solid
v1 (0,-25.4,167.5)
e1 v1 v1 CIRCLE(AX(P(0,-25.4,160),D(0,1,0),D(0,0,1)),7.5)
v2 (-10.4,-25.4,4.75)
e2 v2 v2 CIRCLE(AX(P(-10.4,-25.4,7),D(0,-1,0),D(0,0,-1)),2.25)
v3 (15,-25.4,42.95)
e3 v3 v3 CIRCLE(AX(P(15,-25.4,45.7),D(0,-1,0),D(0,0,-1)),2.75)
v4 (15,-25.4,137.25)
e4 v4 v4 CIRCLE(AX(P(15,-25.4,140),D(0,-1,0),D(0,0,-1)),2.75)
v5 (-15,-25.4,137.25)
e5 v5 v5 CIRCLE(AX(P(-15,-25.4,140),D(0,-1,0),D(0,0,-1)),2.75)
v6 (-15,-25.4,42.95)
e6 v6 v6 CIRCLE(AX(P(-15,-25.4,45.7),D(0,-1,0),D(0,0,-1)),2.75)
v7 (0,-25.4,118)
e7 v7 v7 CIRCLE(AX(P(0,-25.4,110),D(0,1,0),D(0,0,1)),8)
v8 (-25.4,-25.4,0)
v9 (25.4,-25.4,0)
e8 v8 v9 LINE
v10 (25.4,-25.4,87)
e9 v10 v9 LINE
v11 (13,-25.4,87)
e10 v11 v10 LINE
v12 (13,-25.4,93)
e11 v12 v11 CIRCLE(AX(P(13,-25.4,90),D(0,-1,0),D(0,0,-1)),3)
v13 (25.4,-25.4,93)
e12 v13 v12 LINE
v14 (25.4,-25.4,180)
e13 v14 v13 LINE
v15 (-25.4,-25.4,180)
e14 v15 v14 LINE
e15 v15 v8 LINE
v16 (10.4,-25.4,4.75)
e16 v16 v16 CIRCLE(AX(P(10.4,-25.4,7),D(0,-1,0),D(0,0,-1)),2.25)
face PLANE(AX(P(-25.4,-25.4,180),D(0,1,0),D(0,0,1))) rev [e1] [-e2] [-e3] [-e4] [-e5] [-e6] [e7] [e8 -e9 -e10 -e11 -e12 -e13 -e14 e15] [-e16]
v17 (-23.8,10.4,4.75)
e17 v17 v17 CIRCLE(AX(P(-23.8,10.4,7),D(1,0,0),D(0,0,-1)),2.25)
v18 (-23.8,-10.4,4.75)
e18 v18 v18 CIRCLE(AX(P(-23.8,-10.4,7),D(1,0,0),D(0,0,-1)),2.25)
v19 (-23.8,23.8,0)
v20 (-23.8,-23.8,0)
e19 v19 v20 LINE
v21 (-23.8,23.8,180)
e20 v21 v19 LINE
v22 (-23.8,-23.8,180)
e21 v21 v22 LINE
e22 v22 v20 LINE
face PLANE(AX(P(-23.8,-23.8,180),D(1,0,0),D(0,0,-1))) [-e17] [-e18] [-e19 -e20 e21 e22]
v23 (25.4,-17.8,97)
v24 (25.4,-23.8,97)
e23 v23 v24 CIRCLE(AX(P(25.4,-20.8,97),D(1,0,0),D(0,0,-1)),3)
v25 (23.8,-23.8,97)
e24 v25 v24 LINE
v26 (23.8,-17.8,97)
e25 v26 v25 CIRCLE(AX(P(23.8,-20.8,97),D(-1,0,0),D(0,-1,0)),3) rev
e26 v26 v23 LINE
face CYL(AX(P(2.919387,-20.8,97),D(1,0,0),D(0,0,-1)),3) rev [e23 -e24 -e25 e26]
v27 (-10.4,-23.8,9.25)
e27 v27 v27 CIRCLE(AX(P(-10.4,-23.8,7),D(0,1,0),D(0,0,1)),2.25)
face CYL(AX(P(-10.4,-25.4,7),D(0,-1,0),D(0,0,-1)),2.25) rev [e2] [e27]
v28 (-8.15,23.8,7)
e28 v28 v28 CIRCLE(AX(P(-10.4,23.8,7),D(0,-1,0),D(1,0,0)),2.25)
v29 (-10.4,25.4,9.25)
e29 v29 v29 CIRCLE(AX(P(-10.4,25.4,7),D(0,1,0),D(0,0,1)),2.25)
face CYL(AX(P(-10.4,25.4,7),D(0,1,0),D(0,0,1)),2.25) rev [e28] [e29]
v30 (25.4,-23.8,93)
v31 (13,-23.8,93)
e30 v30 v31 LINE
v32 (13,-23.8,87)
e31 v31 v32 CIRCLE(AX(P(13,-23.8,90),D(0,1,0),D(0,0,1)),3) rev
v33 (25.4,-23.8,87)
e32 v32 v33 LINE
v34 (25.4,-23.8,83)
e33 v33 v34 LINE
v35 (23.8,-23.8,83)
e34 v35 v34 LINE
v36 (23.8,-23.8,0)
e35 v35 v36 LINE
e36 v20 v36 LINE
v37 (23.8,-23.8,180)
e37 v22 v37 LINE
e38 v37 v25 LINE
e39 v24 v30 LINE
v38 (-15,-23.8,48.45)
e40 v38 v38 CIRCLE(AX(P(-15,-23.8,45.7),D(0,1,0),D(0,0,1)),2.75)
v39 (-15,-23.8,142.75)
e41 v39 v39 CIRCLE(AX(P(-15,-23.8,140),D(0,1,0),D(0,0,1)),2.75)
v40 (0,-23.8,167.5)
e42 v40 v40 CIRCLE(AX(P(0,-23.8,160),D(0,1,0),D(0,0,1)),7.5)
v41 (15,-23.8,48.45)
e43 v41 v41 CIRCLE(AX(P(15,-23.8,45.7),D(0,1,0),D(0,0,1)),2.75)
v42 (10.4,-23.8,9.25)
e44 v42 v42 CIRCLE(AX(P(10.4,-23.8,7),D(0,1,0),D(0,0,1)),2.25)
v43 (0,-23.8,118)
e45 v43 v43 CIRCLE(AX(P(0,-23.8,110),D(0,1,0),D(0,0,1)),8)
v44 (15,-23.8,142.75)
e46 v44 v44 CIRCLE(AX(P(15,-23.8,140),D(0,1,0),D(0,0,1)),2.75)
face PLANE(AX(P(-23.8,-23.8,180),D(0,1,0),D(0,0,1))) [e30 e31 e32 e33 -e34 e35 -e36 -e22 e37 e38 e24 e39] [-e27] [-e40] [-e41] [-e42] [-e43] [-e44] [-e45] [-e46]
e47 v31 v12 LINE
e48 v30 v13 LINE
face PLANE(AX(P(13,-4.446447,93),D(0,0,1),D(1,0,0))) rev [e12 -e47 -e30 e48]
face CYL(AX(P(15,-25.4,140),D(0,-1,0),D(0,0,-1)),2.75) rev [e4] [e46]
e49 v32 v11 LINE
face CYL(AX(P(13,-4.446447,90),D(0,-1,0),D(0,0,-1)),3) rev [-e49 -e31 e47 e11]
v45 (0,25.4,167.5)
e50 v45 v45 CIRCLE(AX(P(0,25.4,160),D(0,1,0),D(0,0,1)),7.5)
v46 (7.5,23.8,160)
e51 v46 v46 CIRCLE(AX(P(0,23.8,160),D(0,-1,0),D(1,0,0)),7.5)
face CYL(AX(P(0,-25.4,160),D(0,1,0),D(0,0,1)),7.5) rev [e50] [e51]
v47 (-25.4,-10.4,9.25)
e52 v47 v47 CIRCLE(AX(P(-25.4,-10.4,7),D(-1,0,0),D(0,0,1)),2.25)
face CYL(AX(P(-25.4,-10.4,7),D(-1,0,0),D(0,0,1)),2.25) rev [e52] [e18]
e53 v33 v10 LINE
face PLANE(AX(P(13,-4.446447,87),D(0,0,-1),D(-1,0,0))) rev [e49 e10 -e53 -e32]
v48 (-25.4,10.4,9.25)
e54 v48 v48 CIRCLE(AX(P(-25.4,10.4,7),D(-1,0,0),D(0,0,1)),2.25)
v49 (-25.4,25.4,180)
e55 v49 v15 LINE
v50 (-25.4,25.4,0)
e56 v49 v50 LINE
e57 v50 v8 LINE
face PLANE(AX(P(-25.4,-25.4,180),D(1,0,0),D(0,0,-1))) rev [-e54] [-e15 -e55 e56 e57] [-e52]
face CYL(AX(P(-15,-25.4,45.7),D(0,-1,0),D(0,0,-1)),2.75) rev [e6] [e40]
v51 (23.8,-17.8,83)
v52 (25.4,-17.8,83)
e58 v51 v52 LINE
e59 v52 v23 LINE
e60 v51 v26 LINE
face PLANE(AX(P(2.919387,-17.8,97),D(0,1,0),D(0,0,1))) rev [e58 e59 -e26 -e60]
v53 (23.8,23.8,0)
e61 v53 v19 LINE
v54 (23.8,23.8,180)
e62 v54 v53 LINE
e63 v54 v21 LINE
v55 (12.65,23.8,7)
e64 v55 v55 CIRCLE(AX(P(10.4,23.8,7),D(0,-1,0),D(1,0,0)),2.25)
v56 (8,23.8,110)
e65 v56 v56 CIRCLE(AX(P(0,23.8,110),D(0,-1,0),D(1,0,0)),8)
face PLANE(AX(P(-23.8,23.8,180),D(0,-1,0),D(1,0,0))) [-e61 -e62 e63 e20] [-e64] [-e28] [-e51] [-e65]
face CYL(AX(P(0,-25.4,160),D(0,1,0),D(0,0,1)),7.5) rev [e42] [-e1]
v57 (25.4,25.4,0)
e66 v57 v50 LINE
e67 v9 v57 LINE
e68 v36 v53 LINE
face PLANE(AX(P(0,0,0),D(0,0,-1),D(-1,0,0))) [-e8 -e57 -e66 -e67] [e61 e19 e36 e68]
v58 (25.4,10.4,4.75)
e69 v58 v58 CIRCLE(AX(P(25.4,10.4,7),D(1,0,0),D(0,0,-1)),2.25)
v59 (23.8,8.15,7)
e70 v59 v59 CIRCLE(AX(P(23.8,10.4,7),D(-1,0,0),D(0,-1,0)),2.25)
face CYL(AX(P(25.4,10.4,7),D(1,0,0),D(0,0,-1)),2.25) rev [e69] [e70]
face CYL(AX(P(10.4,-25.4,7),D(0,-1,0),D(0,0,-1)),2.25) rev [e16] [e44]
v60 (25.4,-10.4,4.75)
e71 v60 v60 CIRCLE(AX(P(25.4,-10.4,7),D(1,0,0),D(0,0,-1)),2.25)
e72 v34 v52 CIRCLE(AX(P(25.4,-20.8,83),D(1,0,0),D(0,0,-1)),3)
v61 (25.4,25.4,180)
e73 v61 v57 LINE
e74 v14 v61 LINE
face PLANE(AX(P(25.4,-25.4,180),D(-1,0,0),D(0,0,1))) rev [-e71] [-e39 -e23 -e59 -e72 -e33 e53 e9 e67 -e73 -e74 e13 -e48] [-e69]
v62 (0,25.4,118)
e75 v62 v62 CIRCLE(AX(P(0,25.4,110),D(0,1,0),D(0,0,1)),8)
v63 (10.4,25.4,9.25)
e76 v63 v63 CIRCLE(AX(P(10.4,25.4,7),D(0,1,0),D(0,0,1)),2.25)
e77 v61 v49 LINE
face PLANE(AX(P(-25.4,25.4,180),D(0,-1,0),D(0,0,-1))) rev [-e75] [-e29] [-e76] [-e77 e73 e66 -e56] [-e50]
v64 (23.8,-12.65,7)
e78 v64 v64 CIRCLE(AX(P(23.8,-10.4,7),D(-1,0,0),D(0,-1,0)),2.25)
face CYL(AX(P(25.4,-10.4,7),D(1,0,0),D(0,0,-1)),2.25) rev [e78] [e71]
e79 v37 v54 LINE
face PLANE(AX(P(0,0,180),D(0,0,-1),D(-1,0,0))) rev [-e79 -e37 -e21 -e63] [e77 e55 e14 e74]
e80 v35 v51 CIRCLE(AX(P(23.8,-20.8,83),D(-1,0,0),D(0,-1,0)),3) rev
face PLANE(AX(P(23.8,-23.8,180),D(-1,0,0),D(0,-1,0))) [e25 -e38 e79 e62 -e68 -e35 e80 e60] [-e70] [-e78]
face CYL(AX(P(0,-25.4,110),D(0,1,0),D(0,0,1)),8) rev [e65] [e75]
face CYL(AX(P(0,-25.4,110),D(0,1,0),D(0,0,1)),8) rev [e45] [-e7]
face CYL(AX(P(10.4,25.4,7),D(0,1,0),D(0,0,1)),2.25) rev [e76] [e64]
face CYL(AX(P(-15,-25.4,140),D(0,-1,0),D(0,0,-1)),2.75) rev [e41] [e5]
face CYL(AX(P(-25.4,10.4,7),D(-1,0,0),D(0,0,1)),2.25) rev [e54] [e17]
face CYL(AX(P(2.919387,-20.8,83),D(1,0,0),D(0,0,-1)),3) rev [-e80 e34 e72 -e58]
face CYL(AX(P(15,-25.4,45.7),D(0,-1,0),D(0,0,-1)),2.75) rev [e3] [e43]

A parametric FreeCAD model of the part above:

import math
import FreeCAD as App
import Part
import Sketcher
from FreeCAD import Vector
Q = App.Units.Quantity

doc = App.newDocument("Part")
body = doc.addObject("PartDesign::Body", "Body")

# Sketch on XY plane
sketch1 = body.newObject("Sketcher::SketchObject", "Sketch")
sketch1.AttachmentSupport = (doc.getObject("XY_Plane"), [""])
sketch1.MapMode = "FlatFace"
sketch1.addGeometry([
    Part.LineSegment(Vector(-25, 25, 0), Vector(-25, -25, 0)),  # 0
    Part.LineSegment(Vector(-25, -25, 0), Vector(25, -25, 0)),  # 1
    Part.LineSegment(Vector(25, -25, 0), Vector(25, 25, 0)),  # 2
    Part.LineSegment(Vector(25, 25, 0), Vector(-25, 25, 0)),  # 3
    Part.LineSegment(Vector(24, -24, 0), Vector(-24, -24, 0)),  # 4
    Part.LineSegment(Vector(-24, -24, 0), Vector(-24, 24, 0)),  # 5
    Part.LineSegment(Vector(-24, 24, 0), Vector(24, 24, 0)),  # 6
    Part.LineSegment(Vector(24, 24, 0), Vector(24, -24, 0)),  # 7
], False)
sketch1.addConstraint([
    Sketcher.Constraint("Coincident", 0, 2, 1, 1),
    Sketcher.Constraint("Coincident", 1, 2, 2, 1),
    Sketcher.Constraint("Coincident", 2, 2, 3, 1),
    Sketcher.Constraint("Coincident", 3, 2, 0, 1),
    Sketcher.Constraint("Coincident", 4, 2, 5, 1),
    Sketcher.Constraint("Coincident", 5, 2, 6, 1),
    Sketcher.Constraint("Coincident", 6, 2, 7, 1),
    Sketcher.Constraint("Coincident", 7, 2, 4, 1),
    Sketcher.Constraint("Vertical", 0),
    Sketcher.Constraint("Horizontal", 1),
    Sketcher.Constraint("Vertical", 2),
    Sketcher.Constraint("Horizontal", 3),
    Sketcher.Constraint("Horizontal", 4),
    Sketcher.Constraint("Vertical", 5),
    Sketcher.Constraint("Horizontal", 6),
    Sketcher.Constraint("Vertical", 7),
    Sketcher.Constraint("Symmetric", 0, 2, 2, 2, -1, 1),
    Sketcher.Constraint("Symmetric", 4, 2, 6, 2, -1, 1),
    Sketcher.Constraint("Equal", 3, 0),
    Sketcher.Constraint("Equal", 6, 5),
    Sketcher.Constraint("DistanceX", 1, 1, 1, 2, 50.8),
    Sketcher.Constraint("DistanceX", 4, 2, 4, 1, 47.6),
])
pad1 = body.newObject("PartDesign::Pad", "Pad")
pad1.Profile = sketch1
pad1.Length = 180

# Sketch on XZ plane
sketch2 = body.newObject("Sketcher::SketchObject", "Sketch001")
sketch2.AttachmentSupport = (doc.getObject("XZ_Plane"), [""])
sketch2.MapMode = "FlatFace"
sketch2.AttachmentOffset = App.Placement(Vector(0, 0, -25.4), App.Rotation())
sketch2.addGeometry([
    Part.Circle(Vector(0, 160, 0), Vector(0, 0, 1), 8),
    Part.Circle(Vector(0, 110, 0), Vector(0, 0, 1), 8),
], False)
sketch2.addConstraint([
    Sketcher.Constraint("PointOnObject", 0, 3, -2),
    Sketcher.Constraint("PointOnObject", 1, 3, -2),
    Sketcher.Constraint("Diameter", 0, 15.0),
    Sketcher.Constraint("Diameter", 1, 16.0),
    Sketcher.Constraint("DistanceY", -1, 1, 0, 3, 160.0),
    Sketcher.Constraint("DistanceY", -1, 1, 1, 3, 110.0),
])
pocket1 = body.newObject("PartDesign::Pocket", "Pocket")
pocket1.Profile = sketch2
pocket1.Type = "ThroughAll"
pocket1.Reversed = True

# Sketch on XZ plane
sketch3 = body.newObject("Sketcher::SketchObject", "Sketch002")
sketch3.AttachmentSupport = (doc.getObject("XZ_Plane"), [""])
sketch3.MapMode = "FlatFace"
sketch3.AttachmentOffset = App.Placement(Vector(0, 0, 10.4), App.Rotation())
sketch3.addGeometry([
    Part.LineSegment(Vector(-12.5, 7, 0), Vector(-25.4, 7, 0)),
    Part.LineSegment(Vector(-25.4, 7, 0), Vector(-25.4, 9.2, 0)),
    Part.LineSegment(Vector(-25.4, 9.2, 0), Vector(-13.9, 9.2, 0)),
    Part.LineSegment(Vector(-13.9, 9.2, 0), Vector(-12.5, 7, 0)),
], False)
sketch3.addGeometry(Part.LineSegment(Vector(-25.4, 7, 0), Vector(-12.5, 7, 0)), True)  # axis
sketch3.addConstraint([
    Sketcher.Constraint("Coincident", 0, 2, 1, 1),
    Sketcher.Constraint("Coincident", 1, 2, 2, 1),
    Sketcher.Constraint("Coincident", 2, 2, 3, 1),
    Sketcher.Constraint("Coincident", 3, 2, 0, 1),
    Sketcher.Constraint("Horizontal", 0),
    Sketcher.Constraint("Vertical", 1),
    Sketcher.Constraint("Horizontal", 2),
    Sketcher.Constraint("Horizontal", 4),
    Sketcher.Constraint("Coincident", 4, 1, 0, 2),
    Sketcher.Constraint("Equal", 0, 4),
    Sketcher.Constraint("Angle", 3, Q("-59 deg")),
    Sketcher.Constraint("DistanceX", 2, 1, 2, 2, 11.5),
    Sketcher.Constraint("DistanceY", -1, 1, 0, 2, 7.0),
    Sketcher.Constraint("DistanceY", 1, 1, 1, 2, 2.25),
    Sketcher.Constraint("DistanceX", 0, 2, -1, 1, 25.4),
])
groove = body.newObject("PartDesign::Groove", "Groove")
groove.Profile = sketch3
groove.ReferenceAxis = (sketch3, ["Axis0"])
groove.Angle = 360
doc.recompute()

linearpattern = body.newObject("PartDesign::LinearPattern", "LinearPattern")
linearpattern.Originals = [groove]
linearpattern.Direction = (doc.getObject("Y_Axis"), [""])
linearpattern.Mode = "offset"
linearpattern.Offset = 20.8
linearpattern.Occurrences = 2
body.Tip = linearpattern
doc.recompute()

polarpattern = body.newObject("PartDesign::PolarPattern", "PolarPattern")
polarpattern.Originals = [groove]
polarpattern.Axis = (doc.getObject("Z_Axis"), [""])
polarpattern.Angle = 360
polarpattern.Occurrences = 4
body.Tip = polarpattern

# Sketch on YZ plane
sketch4 = body.newObject("Sketcher::SketchObject", "Sketch003")
sketch4.AttachmentSupport = (doc.getObject("YZ_Plane"), [""])
sketch4.MapMode = "FlatFace"
sketch4.AttachmentOffset = App.Placement(Vector(0, 0, -10.4), App.Rotation())
sketch4.addGeometry([
    Part.LineSegment(Vector(-12.5, 7, 0), Vector(-25.4, 7, 0)),
    Part.LineSegment(Vector(-25.4, 7, 0), Vector(-25.4, 9.2, 0)),
    Part.LineSegment(Vector(-25.4, 9.2, 0), Vector(-13.9, 9.2, 0)),
    Part.LineSegment(Vector(-13.9, 9.2, 0), Vector(-12.5, 7, 0)),
], False)
sketch4.addGeometry(Part.LineSegment(Vector(-25.4, 7, 0), Vector(-12.5, 7, 0)), True)  # axis
sketch4.addConstraint([
    Sketcher.Constraint("Coincident", 0, 2, 1, 1),
    Sketcher.Constraint("Coincident", 1, 2, 2, 1),
    Sketcher.Constraint("Coincident", 2, 2, 3, 1),
    Sketcher.Constraint("Coincident", 3, 2, 0, 1),
    Sketcher.Constraint("Horizontal", 0),
    Sketcher.Constraint("Vertical", 1),
    Sketcher.Constraint("Horizontal", 2),
    Sketcher.Constraint("Horizontal", 4),
    Sketcher.Constraint("Coincident", 4, 1, 0, 2),
    Sketcher.Constraint("Equal", 0, 4),
    Sketcher.Constraint("Angle", 3, Q("-59 deg")),
    Sketcher.Constraint("DistanceX", 2, 1, 2, 2, 11.5),
    Sketcher.Constraint("DistanceY", -1, 1, 0, 2, 7.0),
    Sketcher.Constraint("DistanceY", 1, 1, 1, 2, 2.25),
    Sketcher.Constraint("DistanceX", 0, 2, -1, 1, 25.4),
])
groove2 = body.newObject("PartDesign::Groove", "Groove001")
groove2.Profile = sketch4
groove2.ReferenceAxis = (sketch4, ["Axis0"])
groove2.Angle = 360

# Sketch on XZ plane
sketch5 = body.newObject("Sketcher::SketchObject", "Sketch004")
sketch5.AttachmentSupport = (doc.getObject("XZ_Plane"), [""])
sketch5.MapMode = "FlatFace"
sketch5.AttachmentOffset = App.Placement(Vector(0, 0, 10.4), App.Rotation())
sketch5.addGeometry([
    Part.LineSegment(Vector(12.5, 7, 0), Vector(25.4, 7, 0)),
    Part.LineSegment(Vector(25.4, 7, 0), Vector(25.4, 9.2, 0)),
    Part.LineSegment(Vector(25.4, 9.2, 0), Vector(13.9, 9.2, 0)),
    Part.LineSegment(Vector(13.9, 9.2, 0), Vector(12.5, 7, 0)),
], False)
sketch5.addGeometry(Part.LineSegment(Vector(25.4, 7, 0), Vector(12.5, 7, 0)), True)  # axis
sketch5.addConstraint([
    Sketcher.Constraint("Coincident", 0, 2, 1, 1),
    Sketcher.Constraint("Coincident", 1, 2, 2, 1),
    Sketcher.Constraint("Coincident", 2, 2, 3, 1),
    Sketcher.Constraint("Coincident", 3, 2, 0, 1),
    Sketcher.Constraint("Horizontal", 0),
    Sketcher.Constraint("Vertical", 1),
    Sketcher.Constraint("Horizontal", 2),
    Sketcher.Constraint("Horizontal", 4),
    Sketcher.Constraint("Coincident", 4, 1, 0, 2),
    Sketcher.Constraint("Equal", 0, 4),
    Sketcher.Constraint("Angle", 3, Q("-121 deg")),
    Sketcher.Constraint("DistanceX", 2, 2, 2, 1, 11.5),
    Sketcher.Constraint("DistanceY", -1, 1, 0, 2, 7.0),
    Sketcher.Constraint("DistanceY", 1, 1, 1, 2, 2.25),
    Sketcher.Constraint("DistanceX", -1, 1, 0, 2, 25.4),
])
groove3 = body.newObject("PartDesign::Groove", "Groove002")
groove3.Profile = sketch5
groove3.ReferenceAxis = (sketch5, ["Axis0"])
groove3.Angle = 360

# Sketch on YZ plane
sketch6 = body.newObject("Sketcher::SketchObject", "Sketch005")
sketch6.AttachmentSupport = (doc.getObject("YZ_Plane"), [""])
sketch6.MapMode = "FlatFace"
sketch6.AttachmentOffset = App.Placement(Vector(0, 0, 10.4), App.Rotation())
sketch6.addGeometry([
    Part.LineSegment(Vector(12.5, 7, 0), Vector(25.4, 7, 0)),
    Part.LineSegment(Vector(25.4, 7, 0), Vector(25.4, 9.2, 0)),
    Part.LineSegment(Vector(25.4, 9.2, 0), Vector(13.9, 9.2, 0)),
    Part.LineSegment(Vector(13.9, 9.2, 0), Vector(12.5, 7, 0)),
], False)
sketch6.addGeometry(Part.LineSegment(Vector(25.4, 7, 0), Vector(12.5, 7, 0)), True)  # axis
sketch6.addConstraint([
    Sketcher.Constraint("Coincident", 0, 2, 1, 1),
    Sketcher.Constraint("Coincident", 1, 2, 2, 1),
    Sketcher.Constraint("Coincident", 2, 2, 3, 1),
    Sketcher.Constraint("Coincident", 3, 2, 0, 1),
    Sketcher.Constraint("Horizontal", 0),
    Sketcher.Constraint("Vertical", 1),
    Sketcher.Constraint("Horizontal", 2),
    Sketcher.Constraint("Horizontal", 4),
    Sketcher.Constraint("Coincident", 4, 1, 0, 2),
    Sketcher.Constraint("Equal", 0, 4),
    Sketcher.Constraint("Angle", 3, Q("-121 deg")),
    Sketcher.Constraint("DistanceX", 2, 2, 2, 1, 11.5),
    Sketcher.Constraint("DistanceY", -1, 1, 0, 2, 7.0),
    Sketcher.Constraint("DistanceY", 1, 1, 1, 2, 2.25),
    Sketcher.Constraint("DistanceX", -1, 1, 0, 2, 25.4),
])
groove4 = body.newObject("PartDesign::Groove", "Groove003")
groove4.Profile = sketch6
groove4.ReferenceAxis = (sketch6, ["Axis0"])
groove4.Angle = 360

# Sketch on XZ plane
sketch7 = body.newObject("Sketcher::SketchObject", "Sketch006")
sketch7.AttachmentSupport = (doc.getObject("XZ_Plane"), [""])
sketch7.MapMode = "FlatFace"
sketch7.AttachmentOffset = App.Placement(Vector(0, 0, 25.4), App.Rotation())
sketch7.addGeometry([
    Part.Circle(Vector(15, 140, 0), Vector(0, 0, 1), 2.8),
    Part.Circle(Vector(-15, 140, 0), Vector(0, 0, 1), 2.8),
    Part.Circle(Vector(-15, 45.7, 0), Vector(0, 0, 1), 2.8),
    Part.Circle(Vector(15, 45.7, 0), Vector(0, 0, 1), 2.8),
], False)
sketch7.addConstraint([
    Sketcher.Constraint("Equal", 0, 1),
    Sketcher.Constraint("Equal", 1, 2),
    Sketcher.Constraint("Equal", 2, 3),
    Sketcher.Constraint("Symmetric", 0, 3, 1, 3, -2),
    Sketcher.Constraint("Symmetric", 2, 3, 3, 3, -2),
    Sketcher.Constraint("Vertical", 1, 3, 2, 3),
    Sketcher.Constraint("Diameter", 0, 5.5),
    Sketcher.Constraint("DistanceX", -1, 1, 0, 3, 15.0),
    Sketcher.Constraint("DistanceY", -1, 1, 0, 3, 140.0),
    Sketcher.Constraint("DistanceY", -1, 1, 2, 3, 45.7),
])
doc.recompute()
hole = body.newObject("PartDesign::Hole", "Hole")
hole.Profile = sketch7
hole.ThreadType = "None"
hole.Diameter = 5.5
hole.DepthType = "Dimension"
hole.Depth = 19.75
hole.DrillPoint = "Angled"
hole.DrillPointAngle = 118

# Sketch on XZ plane
sketch8 = body.newObject("Sketcher::SketchObject", "Sketch007")
sketch8.AttachmentSupport = (doc.getObject("XZ_Plane"), [""])
sketch8.MapMode = "FlatFace"
sketch8.AttachmentOffset = App.Placement(Vector(0, 0, 25.4), App.Rotation())
sketch8.addGeometry([
    Part.LineSegment(Vector(25.4, 93, 0), Vector(13, 93, 0)),
    Part.ArcOfCircle(Part.Circle(Vector(13, 90, 0), Vector(0, 0, 1), 3), math.radians(90), math.radians(270)),
    Part.LineSegment(Vector(13, 87, 0), Vector(25.4, 87, 0)),
    Part.ArcOfCircle(Part.Circle(Vector(25.4, 90, 0), Vector(0, 0, 1), 3), math.radians(-90), math.radians(90)),
], False)
sketch8.addConstraint([
    Sketcher.Constraint("Tangent", 0, 2, 1, 1),
    Sketcher.Constraint("Tangent", 1, 2, 2, 1),
    Sketcher.Constraint("Tangent", 2, 2, 3, 1),
    Sketcher.Constraint("Tangent", 3, 2, 0, 1),
    Sketcher.Constraint("Horizontal", 0),
    Sketcher.Constraint("Horizontal", 2),
    Sketcher.Constraint("Radius", 1, 3.0),
    Sketcher.Constraint("DistanceX", 0, 2, 0, 1, 12.4),
    Sketcher.Constraint("DistanceX", -1, 1, 1, 3, 13.0),
    Sketcher.Constraint("DistanceY", -1, 1, 1, 3, 90.0),
])
pocket2 = body.newObject("PartDesign::Pocket", "Pocket001")
pocket2.Profile = sketch8
pocket2.Length = 1.6

# Sketch on YZ plane
sketch9 = body.newObject("Sketcher::SketchObject", "Sketch008")
sketch9.AttachmentSupport = (doc.getObject("YZ_Plane"), [""])
sketch9.MapMode = "FlatFace"
sketch9.AttachmentOffset = App.Placement(Vector(0, 0, 25.4), App.Rotation())
sketch9.addGeometry([
    Part.LineSegment(Vector(-17.8, 83, 0), Vector(-17.8, 97, 0)),
    Part.ArcOfCircle(Part.Circle(Vector(-20.8, 97, 0), Vector(0, 0, 1), 3), math.radians(0), math.radians(180)),
    Part.LineSegment(Vector(-23.8, 97, 0), Vector(-23.8, 83, 0)),
    Part.ArcOfCircle(Part.Circle(Vector(-20.8, 83, 0), Vector(0, 0, 1), 3), math.radians(180), math.radians(360)),
], False)
sketch9.addConstraint([
    Sketcher.Constraint("Tangent", 0, 2, 1, 1),
    Sketcher.Constraint("Tangent", 1, 2, 2, 1),
    Sketcher.Constraint("Tangent", 2, 2, 3, 1),
    Sketcher.Constraint("Tangent", 3, 2, 0, 1),
    Sketcher.Constraint("Vertical", 0),
    Sketcher.Constraint("Vertical", 2),
    Sketcher.Constraint("Radius", 1, 3.0),
    Sketcher.Constraint("DistanceY", 0, 1, 0, 2, 14.0),
    Sketcher.Constraint("DistanceY", -1, 1, 1, 3, 97.0),
    Sketcher.Constraint("DistanceX", 1, 3, -1, 1, 20.8),
])
pocket3 = body.newObject("PartDesign::Pocket", "Pocket002")
pocket3.Profile = sketch9
pocket3.Length = 1.6

doc.recompute()
